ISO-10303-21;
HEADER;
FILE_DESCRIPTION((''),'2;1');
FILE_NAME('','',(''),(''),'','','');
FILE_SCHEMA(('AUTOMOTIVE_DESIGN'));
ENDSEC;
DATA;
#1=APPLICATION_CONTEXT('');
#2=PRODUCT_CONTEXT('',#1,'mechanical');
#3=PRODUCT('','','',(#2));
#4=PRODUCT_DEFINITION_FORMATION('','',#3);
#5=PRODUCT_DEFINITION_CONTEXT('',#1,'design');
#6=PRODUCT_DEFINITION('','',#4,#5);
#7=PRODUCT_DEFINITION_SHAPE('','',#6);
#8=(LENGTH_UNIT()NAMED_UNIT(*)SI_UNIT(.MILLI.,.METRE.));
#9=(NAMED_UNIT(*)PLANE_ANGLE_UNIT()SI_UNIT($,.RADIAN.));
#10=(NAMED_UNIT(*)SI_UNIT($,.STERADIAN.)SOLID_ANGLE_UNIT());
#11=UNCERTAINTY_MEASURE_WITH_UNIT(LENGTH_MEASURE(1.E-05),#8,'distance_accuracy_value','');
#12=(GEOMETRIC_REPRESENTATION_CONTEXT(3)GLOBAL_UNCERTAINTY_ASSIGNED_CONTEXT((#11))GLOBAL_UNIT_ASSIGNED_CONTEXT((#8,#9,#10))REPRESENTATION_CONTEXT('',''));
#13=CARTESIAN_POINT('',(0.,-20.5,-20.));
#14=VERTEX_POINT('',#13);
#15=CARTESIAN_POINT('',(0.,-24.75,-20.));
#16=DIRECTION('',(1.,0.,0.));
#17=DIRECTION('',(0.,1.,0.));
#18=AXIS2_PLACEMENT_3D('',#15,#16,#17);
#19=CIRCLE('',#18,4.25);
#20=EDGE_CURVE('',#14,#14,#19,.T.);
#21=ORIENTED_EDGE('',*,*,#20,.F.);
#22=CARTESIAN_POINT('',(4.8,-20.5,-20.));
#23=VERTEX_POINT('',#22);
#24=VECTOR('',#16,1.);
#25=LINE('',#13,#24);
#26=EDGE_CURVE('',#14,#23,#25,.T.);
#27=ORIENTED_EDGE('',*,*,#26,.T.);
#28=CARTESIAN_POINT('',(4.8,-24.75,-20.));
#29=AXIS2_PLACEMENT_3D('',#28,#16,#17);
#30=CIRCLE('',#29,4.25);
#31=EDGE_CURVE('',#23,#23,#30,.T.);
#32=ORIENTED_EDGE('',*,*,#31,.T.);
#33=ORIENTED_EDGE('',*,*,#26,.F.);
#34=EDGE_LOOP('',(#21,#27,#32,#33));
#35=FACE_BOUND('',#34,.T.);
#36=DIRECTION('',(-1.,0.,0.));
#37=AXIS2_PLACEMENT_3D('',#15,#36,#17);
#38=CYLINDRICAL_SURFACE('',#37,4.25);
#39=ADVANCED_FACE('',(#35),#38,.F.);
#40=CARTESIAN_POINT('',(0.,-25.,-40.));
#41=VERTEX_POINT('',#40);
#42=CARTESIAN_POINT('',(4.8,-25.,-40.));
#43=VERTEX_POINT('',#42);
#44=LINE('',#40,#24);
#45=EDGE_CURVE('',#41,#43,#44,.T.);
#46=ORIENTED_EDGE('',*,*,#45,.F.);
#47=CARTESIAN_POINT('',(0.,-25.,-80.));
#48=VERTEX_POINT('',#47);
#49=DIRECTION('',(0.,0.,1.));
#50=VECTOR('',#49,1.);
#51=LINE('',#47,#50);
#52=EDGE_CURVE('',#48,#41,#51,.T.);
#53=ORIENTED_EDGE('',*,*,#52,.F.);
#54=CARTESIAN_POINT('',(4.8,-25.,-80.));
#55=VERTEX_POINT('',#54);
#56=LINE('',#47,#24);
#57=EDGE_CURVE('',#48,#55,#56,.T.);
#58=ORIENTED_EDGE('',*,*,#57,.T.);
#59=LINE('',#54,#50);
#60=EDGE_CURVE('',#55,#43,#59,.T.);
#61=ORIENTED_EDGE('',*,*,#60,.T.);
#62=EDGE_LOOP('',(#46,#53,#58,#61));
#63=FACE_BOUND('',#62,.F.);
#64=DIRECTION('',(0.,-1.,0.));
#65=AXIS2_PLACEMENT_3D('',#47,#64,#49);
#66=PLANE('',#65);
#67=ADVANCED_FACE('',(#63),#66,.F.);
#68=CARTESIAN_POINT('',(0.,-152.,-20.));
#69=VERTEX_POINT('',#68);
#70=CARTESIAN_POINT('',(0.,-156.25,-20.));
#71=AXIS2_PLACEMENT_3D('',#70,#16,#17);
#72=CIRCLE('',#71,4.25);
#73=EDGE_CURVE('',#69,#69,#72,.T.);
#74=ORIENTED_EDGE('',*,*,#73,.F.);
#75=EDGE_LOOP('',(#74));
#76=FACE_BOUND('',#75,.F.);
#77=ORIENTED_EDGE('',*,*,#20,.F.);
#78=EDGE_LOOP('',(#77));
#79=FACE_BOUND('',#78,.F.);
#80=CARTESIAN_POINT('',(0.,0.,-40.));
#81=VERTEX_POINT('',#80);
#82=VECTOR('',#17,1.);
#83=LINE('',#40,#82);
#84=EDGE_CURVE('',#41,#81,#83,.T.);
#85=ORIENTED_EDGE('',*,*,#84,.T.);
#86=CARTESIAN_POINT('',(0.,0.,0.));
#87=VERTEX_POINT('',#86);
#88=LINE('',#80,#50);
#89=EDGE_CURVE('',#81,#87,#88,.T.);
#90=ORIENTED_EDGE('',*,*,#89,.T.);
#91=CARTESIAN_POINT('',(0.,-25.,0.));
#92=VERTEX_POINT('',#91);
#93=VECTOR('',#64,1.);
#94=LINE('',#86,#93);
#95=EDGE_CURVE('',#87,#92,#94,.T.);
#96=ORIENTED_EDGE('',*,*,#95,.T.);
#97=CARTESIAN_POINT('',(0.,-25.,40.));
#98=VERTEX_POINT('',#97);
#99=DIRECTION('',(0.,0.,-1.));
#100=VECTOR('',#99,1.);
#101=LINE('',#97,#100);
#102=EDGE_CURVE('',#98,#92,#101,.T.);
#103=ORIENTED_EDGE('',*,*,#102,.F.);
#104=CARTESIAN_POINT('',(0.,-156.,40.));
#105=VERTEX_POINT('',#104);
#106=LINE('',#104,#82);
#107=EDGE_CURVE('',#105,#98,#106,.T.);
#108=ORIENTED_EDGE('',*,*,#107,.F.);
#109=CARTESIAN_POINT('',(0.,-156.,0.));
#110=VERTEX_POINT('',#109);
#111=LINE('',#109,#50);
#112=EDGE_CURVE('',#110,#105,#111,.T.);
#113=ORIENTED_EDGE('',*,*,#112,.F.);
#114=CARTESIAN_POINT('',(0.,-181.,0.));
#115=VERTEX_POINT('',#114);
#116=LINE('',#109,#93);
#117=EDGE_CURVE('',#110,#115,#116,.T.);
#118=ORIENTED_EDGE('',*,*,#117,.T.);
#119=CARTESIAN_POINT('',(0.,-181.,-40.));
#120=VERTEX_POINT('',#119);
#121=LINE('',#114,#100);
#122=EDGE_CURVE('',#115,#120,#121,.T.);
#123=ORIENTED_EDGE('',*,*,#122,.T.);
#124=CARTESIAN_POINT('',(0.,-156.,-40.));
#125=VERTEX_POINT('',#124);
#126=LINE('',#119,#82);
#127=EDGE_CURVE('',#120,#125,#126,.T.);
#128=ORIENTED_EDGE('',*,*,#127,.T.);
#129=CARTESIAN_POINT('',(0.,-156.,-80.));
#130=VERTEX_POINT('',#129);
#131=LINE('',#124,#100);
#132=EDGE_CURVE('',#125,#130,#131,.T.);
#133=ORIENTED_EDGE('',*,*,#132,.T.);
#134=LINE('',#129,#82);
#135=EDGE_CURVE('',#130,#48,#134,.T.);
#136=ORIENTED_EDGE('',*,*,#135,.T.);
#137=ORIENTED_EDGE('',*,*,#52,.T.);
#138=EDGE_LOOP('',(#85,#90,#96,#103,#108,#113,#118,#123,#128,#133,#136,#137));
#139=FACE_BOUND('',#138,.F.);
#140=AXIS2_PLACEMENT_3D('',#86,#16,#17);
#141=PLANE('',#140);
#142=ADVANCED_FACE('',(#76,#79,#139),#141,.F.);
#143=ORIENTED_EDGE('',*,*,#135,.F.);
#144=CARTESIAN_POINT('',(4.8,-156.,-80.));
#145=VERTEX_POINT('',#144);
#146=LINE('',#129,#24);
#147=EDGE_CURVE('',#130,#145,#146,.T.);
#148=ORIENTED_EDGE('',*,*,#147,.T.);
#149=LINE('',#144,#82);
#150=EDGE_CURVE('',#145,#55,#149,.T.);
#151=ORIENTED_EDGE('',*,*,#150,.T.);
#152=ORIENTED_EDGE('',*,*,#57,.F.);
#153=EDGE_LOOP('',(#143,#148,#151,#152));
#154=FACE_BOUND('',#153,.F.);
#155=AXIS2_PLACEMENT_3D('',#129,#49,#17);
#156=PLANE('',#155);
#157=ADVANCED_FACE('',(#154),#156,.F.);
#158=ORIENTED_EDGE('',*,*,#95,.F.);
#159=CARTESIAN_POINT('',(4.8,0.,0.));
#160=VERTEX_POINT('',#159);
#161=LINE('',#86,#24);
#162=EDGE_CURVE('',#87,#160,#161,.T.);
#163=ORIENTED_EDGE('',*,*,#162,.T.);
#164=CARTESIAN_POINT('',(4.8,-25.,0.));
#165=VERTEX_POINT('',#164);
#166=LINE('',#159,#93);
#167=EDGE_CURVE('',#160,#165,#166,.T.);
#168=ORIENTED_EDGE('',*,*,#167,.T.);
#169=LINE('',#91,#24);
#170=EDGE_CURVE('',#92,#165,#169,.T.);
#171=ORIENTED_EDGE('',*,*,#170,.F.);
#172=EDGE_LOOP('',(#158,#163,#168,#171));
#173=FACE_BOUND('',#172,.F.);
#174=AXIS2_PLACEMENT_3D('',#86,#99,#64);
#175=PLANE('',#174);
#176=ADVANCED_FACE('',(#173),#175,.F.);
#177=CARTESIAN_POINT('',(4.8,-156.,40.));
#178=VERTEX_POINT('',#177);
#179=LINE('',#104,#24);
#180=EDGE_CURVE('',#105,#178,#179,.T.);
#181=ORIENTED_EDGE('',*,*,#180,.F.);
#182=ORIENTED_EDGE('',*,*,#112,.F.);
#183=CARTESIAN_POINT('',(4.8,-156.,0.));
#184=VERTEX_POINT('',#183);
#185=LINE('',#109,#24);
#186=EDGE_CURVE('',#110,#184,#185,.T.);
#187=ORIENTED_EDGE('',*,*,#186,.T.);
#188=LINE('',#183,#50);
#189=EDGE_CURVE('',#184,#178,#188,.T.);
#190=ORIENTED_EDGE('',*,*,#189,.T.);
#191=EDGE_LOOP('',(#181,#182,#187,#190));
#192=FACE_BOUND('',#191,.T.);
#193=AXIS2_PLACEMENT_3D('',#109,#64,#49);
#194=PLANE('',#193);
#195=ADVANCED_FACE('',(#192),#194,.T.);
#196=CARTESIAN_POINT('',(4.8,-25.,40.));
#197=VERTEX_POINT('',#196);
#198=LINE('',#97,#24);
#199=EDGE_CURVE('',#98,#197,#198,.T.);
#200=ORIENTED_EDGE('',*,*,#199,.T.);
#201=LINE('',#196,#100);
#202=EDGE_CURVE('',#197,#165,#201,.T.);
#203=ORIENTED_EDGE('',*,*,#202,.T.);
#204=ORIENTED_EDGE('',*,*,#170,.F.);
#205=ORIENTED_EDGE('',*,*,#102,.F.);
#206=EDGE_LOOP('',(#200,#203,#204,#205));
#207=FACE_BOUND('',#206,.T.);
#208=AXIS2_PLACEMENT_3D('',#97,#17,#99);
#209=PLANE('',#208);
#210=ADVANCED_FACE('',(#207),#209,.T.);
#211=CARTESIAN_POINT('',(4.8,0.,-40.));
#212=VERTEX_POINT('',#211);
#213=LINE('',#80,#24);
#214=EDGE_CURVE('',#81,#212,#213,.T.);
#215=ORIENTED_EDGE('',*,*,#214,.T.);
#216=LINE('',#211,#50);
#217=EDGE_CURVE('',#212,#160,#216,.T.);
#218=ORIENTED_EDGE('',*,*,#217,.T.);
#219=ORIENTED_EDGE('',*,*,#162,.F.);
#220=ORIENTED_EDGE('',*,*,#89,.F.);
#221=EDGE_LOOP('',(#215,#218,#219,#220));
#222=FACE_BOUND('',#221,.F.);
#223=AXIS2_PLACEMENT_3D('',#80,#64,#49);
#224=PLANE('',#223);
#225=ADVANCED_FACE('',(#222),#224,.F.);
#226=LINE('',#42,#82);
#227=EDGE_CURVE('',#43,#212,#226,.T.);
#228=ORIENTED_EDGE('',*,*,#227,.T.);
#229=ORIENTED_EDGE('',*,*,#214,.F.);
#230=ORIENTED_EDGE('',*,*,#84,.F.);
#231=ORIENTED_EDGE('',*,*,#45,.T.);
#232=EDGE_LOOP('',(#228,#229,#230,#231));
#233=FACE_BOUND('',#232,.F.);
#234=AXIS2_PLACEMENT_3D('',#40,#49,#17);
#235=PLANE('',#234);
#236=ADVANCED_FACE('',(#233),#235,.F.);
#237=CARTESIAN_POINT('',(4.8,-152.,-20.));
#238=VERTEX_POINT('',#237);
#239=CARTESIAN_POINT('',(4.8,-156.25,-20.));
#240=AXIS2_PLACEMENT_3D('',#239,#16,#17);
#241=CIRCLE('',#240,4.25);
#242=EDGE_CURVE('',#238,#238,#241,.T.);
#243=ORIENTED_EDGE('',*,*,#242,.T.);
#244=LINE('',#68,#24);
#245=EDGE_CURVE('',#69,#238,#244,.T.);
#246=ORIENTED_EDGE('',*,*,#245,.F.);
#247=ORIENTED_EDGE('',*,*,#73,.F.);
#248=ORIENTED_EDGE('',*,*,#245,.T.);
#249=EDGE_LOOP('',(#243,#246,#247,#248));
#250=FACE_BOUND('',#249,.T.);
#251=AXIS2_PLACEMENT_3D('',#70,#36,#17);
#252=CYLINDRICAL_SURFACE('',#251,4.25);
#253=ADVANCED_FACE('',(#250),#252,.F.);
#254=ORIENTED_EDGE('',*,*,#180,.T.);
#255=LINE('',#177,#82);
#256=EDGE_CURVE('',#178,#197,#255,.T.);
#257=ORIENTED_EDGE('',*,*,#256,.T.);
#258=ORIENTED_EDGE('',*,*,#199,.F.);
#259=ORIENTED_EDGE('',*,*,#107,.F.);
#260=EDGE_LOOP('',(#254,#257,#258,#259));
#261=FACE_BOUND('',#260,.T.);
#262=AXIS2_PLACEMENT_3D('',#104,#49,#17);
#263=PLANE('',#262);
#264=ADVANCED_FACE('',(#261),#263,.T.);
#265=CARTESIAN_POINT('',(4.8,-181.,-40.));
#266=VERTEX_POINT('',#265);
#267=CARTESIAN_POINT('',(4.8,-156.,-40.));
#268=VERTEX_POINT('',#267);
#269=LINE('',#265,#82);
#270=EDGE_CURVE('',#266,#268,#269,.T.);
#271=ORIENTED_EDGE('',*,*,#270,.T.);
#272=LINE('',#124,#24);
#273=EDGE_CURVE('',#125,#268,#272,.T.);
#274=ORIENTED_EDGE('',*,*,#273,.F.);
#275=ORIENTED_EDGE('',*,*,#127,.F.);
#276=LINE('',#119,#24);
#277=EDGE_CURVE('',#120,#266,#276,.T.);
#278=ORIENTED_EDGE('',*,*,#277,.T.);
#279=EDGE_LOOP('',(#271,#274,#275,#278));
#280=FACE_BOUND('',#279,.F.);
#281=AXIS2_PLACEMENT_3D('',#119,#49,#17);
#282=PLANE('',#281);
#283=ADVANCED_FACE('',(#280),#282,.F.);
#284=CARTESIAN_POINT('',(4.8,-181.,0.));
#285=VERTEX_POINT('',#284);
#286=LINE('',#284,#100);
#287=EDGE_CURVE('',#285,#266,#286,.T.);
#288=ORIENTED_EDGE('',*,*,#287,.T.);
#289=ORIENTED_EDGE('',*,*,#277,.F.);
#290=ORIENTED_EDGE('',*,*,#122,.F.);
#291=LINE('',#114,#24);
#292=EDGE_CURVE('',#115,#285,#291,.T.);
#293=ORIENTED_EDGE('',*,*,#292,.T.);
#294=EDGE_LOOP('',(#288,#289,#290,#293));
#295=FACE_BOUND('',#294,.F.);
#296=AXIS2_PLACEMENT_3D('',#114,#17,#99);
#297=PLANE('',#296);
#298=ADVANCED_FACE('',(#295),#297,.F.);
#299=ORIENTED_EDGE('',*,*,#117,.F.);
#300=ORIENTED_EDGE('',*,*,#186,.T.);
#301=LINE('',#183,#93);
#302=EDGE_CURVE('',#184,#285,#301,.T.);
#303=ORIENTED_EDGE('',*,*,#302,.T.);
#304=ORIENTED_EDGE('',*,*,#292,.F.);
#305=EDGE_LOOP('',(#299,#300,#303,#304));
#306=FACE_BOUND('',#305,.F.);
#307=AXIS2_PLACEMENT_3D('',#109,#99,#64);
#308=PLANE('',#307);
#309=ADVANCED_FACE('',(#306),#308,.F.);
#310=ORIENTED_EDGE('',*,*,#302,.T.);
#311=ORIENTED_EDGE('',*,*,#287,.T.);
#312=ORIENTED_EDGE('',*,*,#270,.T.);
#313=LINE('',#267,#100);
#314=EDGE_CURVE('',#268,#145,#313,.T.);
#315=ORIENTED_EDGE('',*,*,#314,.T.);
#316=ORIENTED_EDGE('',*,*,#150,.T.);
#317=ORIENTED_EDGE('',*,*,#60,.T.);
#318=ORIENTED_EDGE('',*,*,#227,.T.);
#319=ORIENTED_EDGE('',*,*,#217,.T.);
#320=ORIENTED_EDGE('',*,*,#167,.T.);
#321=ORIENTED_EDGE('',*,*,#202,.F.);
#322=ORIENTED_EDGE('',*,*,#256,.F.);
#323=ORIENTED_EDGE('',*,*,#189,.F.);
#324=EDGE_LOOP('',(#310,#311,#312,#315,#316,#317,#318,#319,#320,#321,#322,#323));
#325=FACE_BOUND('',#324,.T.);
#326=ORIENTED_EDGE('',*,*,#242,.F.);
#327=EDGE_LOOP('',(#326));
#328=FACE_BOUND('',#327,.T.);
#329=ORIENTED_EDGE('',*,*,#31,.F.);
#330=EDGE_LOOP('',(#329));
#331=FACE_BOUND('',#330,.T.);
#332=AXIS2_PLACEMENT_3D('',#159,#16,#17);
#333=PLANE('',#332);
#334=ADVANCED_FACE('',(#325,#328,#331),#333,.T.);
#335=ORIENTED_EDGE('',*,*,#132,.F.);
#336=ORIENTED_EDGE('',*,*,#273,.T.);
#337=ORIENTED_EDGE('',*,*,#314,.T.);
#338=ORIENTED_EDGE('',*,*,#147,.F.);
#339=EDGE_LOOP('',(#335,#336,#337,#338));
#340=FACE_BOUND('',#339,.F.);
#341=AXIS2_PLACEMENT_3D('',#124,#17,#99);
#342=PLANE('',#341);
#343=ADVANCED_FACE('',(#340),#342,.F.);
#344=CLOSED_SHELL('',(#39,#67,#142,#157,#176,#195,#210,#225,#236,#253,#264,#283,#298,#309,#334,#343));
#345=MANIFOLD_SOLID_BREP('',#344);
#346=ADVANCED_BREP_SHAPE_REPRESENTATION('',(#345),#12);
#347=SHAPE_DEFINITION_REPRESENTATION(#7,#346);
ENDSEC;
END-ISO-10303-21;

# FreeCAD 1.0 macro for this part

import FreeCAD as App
import Part
import Sketcher


def add_polygon(sketch, points):
    """Adds a closed chain of lines whose ends are joined by coincident constraints."""
    first, n = sketch.GeometryCount, len(points)
    for a, b in zip(points, points[1:] + points[:1]):
        sketch.addGeometry(Part.LineSegment(App.Vector(*a, 0), App.Vector(*b, 0)), False)
    for i in range(n):
        sketch.addConstraint(Sketcher.Constraint("Coincident", first + i, 2, first + (i + 1) % n, 1))

doc = App.newDocument("Part")
body = doc.addObject("PartDesign::Body", "Body")

sketch1 = body.newObject("Sketcher::SketchObject", "Sketch")
sketch1.AttachmentSupport = (doc.getObject("YZ_Plane"), [""])
sketch1.MapMode = "FlatFace"
add_polygon(sketch1, [(-156, 0), (-181, 0), (-181, -40), (-156, -40), (-156, -80), (-25, -80), (-25, -40), (0, -40), (0, 0), (-25, 0), (-25, 40), (-156, 40)])
sketch1.addGeometry(Part.Circle(App.Vector(-156.2, -20, 0), App.Vector(0, 0, 1), 4.2), False)
sketch1.addGeometry(Part.Circle(App.Vector(-24.8, -20, 0), App.Vector(0, 0, 1), 4.2), False)
sketch1.addConstraint(Sketcher.Constraint("Horizontal", 0))
sketch1.addConstraint(Sketcher.Constraint("Vertical", 1))
sketch1.addConstraint(Sketcher.Constraint("Horizontal", 2))
sketch1.addConstraint(Sketcher.Constraint("Vertical", 3))
sketch1.addConstraint(Sketcher.Constraint("Horizontal", 4))
sketch1.addConstraint(Sketcher.Constraint("Vertical", 5))
sketch1.addConstraint(Sketcher.Constraint("Horizontal", 6))
sketch1.addConstraint(Sketcher.Constraint("Vertical", 7))
sketch1.addConstraint(Sketcher.Constraint("Horizontal", 8))
sketch1.addConstraint(Sketcher.Constraint("Vertical", 9))
sketch1.addConstraint(Sketcher.Constraint("Horizontal", 10))
sketch1.addConstraint(Sketcher.Constraint("Vertical", 11))
sketch1.addConstraint(Sketcher.Constraint("Coincident", 7, 2, -1, 1))
sketch1.addConstraint(Sketcher.Constraint("Equal", 12, 13))
sketch1.addConstraint(Sketcher.Constraint("Symmetric", 5, 2, 9, 2, -1))
sketch1.addConstraint(Sketcher.Constraint("Symmetric", 2, 2, 10, 2, -1))
sketch1.addConstraint(Sketcher.Constraint("PointOnObject", 0, 2, -1))
sketch1.addConstraint(Sketcher.Constraint("Horizontal", 12, 3, 13, 3))
sketch1.addConstraint(Sketcher.Constraint("Equal", 2, 6))
sketch1.addConstraint(Sketcher.Constraint("Equal", 1, 3))
sketch1.addConstraint(Sketcher.Constraint("Diameter", 12, 8.5))
sketch1.addConstraint(Sketcher.Constraint("DistanceX", 0, 2, 0, 1, 25.0))
sketch1.addConstraint(Sketcher.Constraint("DistanceX", 4, 1, 4, 2, 131.0))
sketch1.addConstraint(Sketcher.Constraint("DistanceY", 1, 2, 1, 1, 40.0))
sketch1.addConstraint(Sketcher.Constraint("DistanceY", 12, 3, -1, 1, 20.0))
sketch1.addConstraint(Sketcher.Constraint("DistanceX", 12, 3, 13, 3, 131.5))
sketch1.addConstraint(Sketcher.Constraint("DistanceX", 13, 3, -1, 1, 24.75))
pad1 = body.newObject("PartDesign::Pad", "Pad")
pad1.Profile = sketch1
pad1.Length = 4.8

doc.recompute()
